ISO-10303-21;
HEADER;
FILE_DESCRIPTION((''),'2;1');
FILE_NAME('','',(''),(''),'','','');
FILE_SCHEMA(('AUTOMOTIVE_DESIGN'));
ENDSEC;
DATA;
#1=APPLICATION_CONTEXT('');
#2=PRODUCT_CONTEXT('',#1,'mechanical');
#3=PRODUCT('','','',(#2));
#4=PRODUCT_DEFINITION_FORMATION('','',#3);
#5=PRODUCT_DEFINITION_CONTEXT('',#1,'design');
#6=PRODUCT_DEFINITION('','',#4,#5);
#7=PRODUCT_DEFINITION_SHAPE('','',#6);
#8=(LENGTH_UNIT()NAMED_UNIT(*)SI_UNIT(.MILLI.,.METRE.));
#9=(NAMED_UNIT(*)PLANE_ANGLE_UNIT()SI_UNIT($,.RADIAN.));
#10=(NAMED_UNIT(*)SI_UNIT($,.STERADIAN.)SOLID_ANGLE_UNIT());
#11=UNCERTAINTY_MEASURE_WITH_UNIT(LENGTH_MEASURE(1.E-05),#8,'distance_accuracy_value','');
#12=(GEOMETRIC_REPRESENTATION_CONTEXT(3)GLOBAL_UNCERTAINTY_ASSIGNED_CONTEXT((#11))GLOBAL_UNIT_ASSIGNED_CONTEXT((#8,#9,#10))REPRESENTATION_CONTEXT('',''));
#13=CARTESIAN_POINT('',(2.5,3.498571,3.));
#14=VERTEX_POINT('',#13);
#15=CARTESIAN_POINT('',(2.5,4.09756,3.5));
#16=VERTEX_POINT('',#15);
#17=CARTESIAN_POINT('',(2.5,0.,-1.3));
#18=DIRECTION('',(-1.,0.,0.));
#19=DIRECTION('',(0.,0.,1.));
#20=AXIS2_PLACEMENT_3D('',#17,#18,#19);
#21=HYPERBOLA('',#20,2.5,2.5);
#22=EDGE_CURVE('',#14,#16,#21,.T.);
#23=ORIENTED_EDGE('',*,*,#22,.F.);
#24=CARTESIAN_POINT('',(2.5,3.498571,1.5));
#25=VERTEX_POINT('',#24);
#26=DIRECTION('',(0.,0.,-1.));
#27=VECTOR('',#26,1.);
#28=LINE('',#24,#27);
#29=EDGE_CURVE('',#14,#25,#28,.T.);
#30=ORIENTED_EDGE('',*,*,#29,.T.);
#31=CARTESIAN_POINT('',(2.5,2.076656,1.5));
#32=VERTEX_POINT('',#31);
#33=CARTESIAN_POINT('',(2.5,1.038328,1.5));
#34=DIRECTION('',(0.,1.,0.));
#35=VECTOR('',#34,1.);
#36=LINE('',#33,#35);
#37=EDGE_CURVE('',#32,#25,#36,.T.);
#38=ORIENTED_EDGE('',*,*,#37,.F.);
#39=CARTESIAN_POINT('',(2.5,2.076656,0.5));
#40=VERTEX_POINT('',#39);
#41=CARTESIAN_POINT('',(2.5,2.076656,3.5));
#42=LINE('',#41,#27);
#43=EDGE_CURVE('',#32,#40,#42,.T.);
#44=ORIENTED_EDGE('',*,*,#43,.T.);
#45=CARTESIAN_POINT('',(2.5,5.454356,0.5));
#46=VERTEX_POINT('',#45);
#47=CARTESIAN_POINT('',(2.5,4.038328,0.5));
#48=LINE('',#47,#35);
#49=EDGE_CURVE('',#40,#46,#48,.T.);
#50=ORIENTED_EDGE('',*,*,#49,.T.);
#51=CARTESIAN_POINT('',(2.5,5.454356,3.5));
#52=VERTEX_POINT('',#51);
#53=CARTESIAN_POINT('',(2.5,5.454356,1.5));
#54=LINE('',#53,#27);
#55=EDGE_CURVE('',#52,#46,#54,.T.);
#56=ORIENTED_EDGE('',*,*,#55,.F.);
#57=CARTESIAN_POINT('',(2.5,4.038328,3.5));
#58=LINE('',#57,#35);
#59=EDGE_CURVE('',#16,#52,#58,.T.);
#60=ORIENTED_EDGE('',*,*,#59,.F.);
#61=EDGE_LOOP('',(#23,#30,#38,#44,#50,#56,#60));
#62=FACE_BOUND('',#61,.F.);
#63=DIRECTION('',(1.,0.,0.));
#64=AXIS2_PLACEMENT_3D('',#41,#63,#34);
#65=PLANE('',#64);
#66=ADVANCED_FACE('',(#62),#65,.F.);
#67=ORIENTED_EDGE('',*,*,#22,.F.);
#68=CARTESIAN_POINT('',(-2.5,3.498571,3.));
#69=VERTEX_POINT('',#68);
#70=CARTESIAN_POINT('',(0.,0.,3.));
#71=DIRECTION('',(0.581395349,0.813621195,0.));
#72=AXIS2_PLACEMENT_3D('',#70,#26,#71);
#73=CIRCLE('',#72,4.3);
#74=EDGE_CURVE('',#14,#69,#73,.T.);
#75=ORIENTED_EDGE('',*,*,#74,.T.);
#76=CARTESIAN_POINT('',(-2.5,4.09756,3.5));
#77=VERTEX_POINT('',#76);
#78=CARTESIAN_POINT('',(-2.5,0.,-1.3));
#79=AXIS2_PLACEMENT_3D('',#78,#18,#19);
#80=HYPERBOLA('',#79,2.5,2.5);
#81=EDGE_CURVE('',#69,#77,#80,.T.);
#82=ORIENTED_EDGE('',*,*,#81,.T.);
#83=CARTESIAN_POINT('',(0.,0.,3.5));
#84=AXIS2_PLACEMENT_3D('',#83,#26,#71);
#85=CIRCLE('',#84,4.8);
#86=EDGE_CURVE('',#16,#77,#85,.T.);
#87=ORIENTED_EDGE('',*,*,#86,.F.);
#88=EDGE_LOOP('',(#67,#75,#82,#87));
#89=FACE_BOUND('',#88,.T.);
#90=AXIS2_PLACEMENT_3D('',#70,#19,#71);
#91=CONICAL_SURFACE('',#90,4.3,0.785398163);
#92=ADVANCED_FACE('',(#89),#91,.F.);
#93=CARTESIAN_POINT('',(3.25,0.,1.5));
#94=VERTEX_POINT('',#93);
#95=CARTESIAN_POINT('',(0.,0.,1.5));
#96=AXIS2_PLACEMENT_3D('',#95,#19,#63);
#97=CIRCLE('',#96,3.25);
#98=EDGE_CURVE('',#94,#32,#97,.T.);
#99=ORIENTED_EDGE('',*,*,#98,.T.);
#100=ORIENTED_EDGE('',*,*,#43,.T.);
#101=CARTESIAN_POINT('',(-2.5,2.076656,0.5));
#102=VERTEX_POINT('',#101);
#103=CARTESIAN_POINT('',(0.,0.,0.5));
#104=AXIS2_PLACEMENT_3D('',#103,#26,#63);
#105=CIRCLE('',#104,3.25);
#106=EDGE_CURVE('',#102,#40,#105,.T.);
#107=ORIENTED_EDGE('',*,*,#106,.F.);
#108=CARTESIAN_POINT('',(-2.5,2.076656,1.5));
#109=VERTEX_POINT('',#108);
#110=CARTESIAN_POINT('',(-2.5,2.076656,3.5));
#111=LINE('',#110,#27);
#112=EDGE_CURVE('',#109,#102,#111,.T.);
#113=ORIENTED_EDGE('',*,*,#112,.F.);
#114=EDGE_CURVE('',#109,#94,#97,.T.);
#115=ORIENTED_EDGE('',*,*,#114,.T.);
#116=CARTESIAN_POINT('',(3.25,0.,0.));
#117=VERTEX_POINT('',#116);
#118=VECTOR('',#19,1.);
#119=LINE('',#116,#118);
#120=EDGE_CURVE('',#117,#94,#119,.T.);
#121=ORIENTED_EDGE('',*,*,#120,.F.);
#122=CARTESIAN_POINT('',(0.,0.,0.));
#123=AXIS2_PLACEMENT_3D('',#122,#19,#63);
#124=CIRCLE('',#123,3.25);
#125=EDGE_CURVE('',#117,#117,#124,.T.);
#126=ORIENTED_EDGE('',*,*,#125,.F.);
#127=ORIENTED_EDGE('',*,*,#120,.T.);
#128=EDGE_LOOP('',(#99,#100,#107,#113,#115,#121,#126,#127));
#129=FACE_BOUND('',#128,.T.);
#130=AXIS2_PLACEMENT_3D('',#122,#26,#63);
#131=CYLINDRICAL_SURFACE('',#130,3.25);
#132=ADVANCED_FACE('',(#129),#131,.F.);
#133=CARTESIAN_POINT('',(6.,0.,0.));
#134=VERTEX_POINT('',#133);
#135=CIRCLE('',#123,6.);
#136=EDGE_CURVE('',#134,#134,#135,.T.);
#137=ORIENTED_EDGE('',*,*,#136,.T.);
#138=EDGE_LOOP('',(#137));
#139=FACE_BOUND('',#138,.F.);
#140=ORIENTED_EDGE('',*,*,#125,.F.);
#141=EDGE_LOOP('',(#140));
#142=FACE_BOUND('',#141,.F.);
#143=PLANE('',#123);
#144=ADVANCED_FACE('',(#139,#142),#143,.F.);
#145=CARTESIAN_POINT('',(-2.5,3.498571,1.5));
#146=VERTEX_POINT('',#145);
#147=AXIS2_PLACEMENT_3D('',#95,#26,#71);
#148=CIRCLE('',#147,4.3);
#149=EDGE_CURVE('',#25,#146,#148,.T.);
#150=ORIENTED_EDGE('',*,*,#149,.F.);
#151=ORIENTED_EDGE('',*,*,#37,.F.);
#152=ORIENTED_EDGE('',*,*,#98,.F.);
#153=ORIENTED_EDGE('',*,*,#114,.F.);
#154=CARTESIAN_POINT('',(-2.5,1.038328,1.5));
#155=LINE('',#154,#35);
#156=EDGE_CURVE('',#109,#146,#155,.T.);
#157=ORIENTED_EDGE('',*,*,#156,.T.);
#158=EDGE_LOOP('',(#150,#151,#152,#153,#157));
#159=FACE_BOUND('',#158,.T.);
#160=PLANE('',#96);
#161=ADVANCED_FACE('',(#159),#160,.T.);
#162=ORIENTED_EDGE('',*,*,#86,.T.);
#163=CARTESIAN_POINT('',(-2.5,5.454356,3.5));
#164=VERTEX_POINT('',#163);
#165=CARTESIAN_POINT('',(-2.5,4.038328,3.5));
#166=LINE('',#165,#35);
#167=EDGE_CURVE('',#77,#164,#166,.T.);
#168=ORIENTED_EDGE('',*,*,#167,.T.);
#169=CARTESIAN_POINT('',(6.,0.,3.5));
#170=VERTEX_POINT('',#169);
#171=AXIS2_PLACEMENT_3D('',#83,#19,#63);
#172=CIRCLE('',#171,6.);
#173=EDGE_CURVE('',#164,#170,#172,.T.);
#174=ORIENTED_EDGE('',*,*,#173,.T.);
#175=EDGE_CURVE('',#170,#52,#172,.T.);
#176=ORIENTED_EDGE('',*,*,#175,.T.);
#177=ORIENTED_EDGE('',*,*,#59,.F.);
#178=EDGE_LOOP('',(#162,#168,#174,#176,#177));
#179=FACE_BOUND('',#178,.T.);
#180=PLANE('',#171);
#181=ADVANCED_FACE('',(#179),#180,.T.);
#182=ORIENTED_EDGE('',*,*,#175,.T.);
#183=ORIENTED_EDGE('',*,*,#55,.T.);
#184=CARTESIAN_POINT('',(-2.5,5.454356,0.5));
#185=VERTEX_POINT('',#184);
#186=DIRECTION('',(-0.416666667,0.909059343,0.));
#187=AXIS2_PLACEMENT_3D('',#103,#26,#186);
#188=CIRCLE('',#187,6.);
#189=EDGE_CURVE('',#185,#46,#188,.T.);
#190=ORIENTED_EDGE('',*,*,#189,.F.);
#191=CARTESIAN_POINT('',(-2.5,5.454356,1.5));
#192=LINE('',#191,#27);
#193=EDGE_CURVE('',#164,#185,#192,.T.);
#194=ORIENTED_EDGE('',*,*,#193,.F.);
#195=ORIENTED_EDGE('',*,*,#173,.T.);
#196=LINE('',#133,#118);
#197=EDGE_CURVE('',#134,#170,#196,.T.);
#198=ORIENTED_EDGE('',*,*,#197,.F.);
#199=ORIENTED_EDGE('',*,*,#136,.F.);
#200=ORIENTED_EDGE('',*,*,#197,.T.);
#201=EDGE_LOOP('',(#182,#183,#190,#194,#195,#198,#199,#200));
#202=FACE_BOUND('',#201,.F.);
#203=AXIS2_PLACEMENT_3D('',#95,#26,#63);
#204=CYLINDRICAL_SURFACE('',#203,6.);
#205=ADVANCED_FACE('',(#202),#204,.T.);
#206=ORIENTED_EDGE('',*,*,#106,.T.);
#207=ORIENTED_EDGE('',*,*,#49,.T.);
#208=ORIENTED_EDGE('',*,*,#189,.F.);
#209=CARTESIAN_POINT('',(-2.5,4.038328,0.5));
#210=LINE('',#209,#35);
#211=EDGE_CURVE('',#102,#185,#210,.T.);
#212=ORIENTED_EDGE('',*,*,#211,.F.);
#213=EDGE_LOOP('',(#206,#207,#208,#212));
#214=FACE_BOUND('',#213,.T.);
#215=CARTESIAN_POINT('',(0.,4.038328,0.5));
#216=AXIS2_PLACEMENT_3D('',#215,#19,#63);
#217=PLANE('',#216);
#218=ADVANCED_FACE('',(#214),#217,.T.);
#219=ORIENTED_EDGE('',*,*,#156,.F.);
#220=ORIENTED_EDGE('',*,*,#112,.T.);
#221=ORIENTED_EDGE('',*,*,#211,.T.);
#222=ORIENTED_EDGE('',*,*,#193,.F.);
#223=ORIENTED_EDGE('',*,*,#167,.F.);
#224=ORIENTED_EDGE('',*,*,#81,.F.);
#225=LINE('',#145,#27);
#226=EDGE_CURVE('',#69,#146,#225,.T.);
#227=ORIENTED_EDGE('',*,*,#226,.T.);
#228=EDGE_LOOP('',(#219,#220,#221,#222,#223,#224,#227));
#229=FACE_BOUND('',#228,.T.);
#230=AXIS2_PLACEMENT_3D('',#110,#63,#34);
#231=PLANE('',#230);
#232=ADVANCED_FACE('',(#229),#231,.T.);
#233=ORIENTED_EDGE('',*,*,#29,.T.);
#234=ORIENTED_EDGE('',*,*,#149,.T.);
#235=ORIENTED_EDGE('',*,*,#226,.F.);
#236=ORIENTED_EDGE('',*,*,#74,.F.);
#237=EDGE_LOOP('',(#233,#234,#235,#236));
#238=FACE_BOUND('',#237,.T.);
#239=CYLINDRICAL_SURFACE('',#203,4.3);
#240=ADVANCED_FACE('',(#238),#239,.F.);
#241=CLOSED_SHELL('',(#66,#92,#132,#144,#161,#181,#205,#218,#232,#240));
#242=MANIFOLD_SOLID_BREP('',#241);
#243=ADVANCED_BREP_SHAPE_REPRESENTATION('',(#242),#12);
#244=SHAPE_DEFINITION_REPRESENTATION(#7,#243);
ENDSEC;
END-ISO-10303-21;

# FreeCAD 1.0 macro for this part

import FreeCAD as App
import Part
import Sketcher
from FreeCAD import Vector


def edges_at(feature, points):
    """Names of the edges that pass closest to the given points."""
    edges = feature.Shape.Edges
    near = lambda p: min(range(len(edges)), key=lambda i: edges[i].distToShape(Part.Vertex(*p))[0])
    return sorted({f"Edge{near(p) + 1}" for p in points})

doc = App.newDocument("Part")
body = doc.addObject("PartDesign::Body", "Body")

# Sketch on XY plane
sketch1 = body.newObject("Sketcher::SketchObject", "Sketch")
sketch1.AttachmentSupport = (doc.getObject("XY_Plane"), [""])
sketch1.MapMode = "FlatFace"
sketch1.addGeometry(Part.Circle(Vector(0, 0, 0), Vector(0, 0, 1), 6), False)
sketch1.addGeometry(Part.Circle(Vector(0, 0, 0), Vector(0, 0, 1), 3.2), False)
sketch1.addConstraint(Sketcher.Constraint("Coincident", 0, 3, -1, 1))
sketch1.addConstraint(Sketcher.Constraint("Coincident", 1, 3, -1, 1))
sketch1.addConstraint(Sketcher.Constraint("Diameter", 0, 12.0))
sketch1.addConstraint(Sketcher.Constraint("Diameter", 1, 6.5))
pad1 = body.newObject("PartDesign::Pad", "Pad")
pad1.Profile = sketch1
pad1.Length = 1.5

# Sketch on XY plane
sketch2 = body.newObject("Sketcher::SketchObject", "Sketch001")
sketch2.AttachmentSupport = (doc.getObject("XY_Plane"), [""])
sketch2.MapMode = "FlatFace"
sketch2.AttachmentOffset = App.Placement(Vector(0, 0, 1.5), App.Rotation())
sketch2.addGeometry(Part.Circle(Vector(0, 0, 0), Vector(0, 0, 1), 6), False)
sketch2.addGeometry(Part.Circle(Vector(0, 0, 0), Vector(0, 0, 1), 4.3), False)
sketch2.addConstraint(Sketcher.Constraint("Coincident", 0, 3, -1, 1))
sketch2.addConstraint(Sketcher.Constraint("Coincident", 1, 3, -1, 1))
sketch2.addConstraint(Sketcher.Constraint("Diameter", 0, 12.0))
sketch2.addConstraint(Sketcher.Constraint("Diameter", 1, 8.6))
pad2 = body.newObject("PartDesign::Pad", "Pad001")
pad2.Profile = sketch2
pad2.Length = 2

# Sketch on XY plane
sketch3 = body.newObject("Sketcher::SketchObject", "Sketch002")
sketch3.AttachmentSupport = (doc.getObject("XY_Plane"), [""])
sketch3.MapMode = "FlatFace"
sketch3.AttachmentOffset = App.Placement(Vector(0, 0, 3.5), App.Rotation())
sketch3.addGeometry(Part.LineSegment(Vector(-2.5, 6, 0), Vector(-2.5, 2.1, 0)), False)
sketch3.addGeometry(Part.LineSegment(Vector(-2.5, 2.1, 0), Vector(2.5, 2.1, 0)), False)
sketch3.addGeometry(Part.LineSegment(Vector(2.5, 2.1, 0), Vector(2.5, 6, 0)), False)
sketch3.addGeometry(Part.LineSegment(Vector(2.5, 6, 0), Vector(-2.5, 6, 0)), False)
sketch3.addConstraint(Sketcher.Constraint("Coincident", 0, 2, 1, 1))
sketch3.addConstraint(Sketcher.Constraint("Coincident", 1, 2, 2, 1))
sketch3.addConstraint(Sketcher.Constraint("Coincident", 2, 2, 3, 1))
sketch3.addConstraint(Sketcher.Constraint("Coincident", 3, 2, 0, 1))
sketch3.addConstraint(Sketcher.Constraint("Vertical", 0))
sketch3.addConstraint(Sketcher.Constraint("Horizontal", 1))
sketch3.addConstraint(Sketcher.Constraint("Vertical", 2))
sketch3.addConstraint(Sketcher.Constraint("Horizontal", 3))
sketch3.addConstraint(Sketcher.Constraint("DistanceX", 1, 1, 1, 2, 5.0))
sketch3.addConstraint(Sketcher.Constraint("DistanceY", -1, 1, 2, 2, 6.0))
sketch3.addConstraint(Sketcher.Constraint("DistanceX", 0, 2, -1, 1, 2.5))
sketch3.addConstraint(Sketcher.Constraint("DistanceY", 0, 2, 0, 1, 3.923344))
pocket1 = body.newObject("PartDesign::Pocket", "Pocket")
pocket1.Profile = sketch3
pocket1.Length = 3
doc.recompute()

chamfer = body.newObject("PartDesign::Chamfer", "Chamfer")
chamfer.Base = (pocket1, edges_at(pocket1, [(0, -4.3, 3.5)]))
chamfer.Size = 0.5

doc.recompute()
